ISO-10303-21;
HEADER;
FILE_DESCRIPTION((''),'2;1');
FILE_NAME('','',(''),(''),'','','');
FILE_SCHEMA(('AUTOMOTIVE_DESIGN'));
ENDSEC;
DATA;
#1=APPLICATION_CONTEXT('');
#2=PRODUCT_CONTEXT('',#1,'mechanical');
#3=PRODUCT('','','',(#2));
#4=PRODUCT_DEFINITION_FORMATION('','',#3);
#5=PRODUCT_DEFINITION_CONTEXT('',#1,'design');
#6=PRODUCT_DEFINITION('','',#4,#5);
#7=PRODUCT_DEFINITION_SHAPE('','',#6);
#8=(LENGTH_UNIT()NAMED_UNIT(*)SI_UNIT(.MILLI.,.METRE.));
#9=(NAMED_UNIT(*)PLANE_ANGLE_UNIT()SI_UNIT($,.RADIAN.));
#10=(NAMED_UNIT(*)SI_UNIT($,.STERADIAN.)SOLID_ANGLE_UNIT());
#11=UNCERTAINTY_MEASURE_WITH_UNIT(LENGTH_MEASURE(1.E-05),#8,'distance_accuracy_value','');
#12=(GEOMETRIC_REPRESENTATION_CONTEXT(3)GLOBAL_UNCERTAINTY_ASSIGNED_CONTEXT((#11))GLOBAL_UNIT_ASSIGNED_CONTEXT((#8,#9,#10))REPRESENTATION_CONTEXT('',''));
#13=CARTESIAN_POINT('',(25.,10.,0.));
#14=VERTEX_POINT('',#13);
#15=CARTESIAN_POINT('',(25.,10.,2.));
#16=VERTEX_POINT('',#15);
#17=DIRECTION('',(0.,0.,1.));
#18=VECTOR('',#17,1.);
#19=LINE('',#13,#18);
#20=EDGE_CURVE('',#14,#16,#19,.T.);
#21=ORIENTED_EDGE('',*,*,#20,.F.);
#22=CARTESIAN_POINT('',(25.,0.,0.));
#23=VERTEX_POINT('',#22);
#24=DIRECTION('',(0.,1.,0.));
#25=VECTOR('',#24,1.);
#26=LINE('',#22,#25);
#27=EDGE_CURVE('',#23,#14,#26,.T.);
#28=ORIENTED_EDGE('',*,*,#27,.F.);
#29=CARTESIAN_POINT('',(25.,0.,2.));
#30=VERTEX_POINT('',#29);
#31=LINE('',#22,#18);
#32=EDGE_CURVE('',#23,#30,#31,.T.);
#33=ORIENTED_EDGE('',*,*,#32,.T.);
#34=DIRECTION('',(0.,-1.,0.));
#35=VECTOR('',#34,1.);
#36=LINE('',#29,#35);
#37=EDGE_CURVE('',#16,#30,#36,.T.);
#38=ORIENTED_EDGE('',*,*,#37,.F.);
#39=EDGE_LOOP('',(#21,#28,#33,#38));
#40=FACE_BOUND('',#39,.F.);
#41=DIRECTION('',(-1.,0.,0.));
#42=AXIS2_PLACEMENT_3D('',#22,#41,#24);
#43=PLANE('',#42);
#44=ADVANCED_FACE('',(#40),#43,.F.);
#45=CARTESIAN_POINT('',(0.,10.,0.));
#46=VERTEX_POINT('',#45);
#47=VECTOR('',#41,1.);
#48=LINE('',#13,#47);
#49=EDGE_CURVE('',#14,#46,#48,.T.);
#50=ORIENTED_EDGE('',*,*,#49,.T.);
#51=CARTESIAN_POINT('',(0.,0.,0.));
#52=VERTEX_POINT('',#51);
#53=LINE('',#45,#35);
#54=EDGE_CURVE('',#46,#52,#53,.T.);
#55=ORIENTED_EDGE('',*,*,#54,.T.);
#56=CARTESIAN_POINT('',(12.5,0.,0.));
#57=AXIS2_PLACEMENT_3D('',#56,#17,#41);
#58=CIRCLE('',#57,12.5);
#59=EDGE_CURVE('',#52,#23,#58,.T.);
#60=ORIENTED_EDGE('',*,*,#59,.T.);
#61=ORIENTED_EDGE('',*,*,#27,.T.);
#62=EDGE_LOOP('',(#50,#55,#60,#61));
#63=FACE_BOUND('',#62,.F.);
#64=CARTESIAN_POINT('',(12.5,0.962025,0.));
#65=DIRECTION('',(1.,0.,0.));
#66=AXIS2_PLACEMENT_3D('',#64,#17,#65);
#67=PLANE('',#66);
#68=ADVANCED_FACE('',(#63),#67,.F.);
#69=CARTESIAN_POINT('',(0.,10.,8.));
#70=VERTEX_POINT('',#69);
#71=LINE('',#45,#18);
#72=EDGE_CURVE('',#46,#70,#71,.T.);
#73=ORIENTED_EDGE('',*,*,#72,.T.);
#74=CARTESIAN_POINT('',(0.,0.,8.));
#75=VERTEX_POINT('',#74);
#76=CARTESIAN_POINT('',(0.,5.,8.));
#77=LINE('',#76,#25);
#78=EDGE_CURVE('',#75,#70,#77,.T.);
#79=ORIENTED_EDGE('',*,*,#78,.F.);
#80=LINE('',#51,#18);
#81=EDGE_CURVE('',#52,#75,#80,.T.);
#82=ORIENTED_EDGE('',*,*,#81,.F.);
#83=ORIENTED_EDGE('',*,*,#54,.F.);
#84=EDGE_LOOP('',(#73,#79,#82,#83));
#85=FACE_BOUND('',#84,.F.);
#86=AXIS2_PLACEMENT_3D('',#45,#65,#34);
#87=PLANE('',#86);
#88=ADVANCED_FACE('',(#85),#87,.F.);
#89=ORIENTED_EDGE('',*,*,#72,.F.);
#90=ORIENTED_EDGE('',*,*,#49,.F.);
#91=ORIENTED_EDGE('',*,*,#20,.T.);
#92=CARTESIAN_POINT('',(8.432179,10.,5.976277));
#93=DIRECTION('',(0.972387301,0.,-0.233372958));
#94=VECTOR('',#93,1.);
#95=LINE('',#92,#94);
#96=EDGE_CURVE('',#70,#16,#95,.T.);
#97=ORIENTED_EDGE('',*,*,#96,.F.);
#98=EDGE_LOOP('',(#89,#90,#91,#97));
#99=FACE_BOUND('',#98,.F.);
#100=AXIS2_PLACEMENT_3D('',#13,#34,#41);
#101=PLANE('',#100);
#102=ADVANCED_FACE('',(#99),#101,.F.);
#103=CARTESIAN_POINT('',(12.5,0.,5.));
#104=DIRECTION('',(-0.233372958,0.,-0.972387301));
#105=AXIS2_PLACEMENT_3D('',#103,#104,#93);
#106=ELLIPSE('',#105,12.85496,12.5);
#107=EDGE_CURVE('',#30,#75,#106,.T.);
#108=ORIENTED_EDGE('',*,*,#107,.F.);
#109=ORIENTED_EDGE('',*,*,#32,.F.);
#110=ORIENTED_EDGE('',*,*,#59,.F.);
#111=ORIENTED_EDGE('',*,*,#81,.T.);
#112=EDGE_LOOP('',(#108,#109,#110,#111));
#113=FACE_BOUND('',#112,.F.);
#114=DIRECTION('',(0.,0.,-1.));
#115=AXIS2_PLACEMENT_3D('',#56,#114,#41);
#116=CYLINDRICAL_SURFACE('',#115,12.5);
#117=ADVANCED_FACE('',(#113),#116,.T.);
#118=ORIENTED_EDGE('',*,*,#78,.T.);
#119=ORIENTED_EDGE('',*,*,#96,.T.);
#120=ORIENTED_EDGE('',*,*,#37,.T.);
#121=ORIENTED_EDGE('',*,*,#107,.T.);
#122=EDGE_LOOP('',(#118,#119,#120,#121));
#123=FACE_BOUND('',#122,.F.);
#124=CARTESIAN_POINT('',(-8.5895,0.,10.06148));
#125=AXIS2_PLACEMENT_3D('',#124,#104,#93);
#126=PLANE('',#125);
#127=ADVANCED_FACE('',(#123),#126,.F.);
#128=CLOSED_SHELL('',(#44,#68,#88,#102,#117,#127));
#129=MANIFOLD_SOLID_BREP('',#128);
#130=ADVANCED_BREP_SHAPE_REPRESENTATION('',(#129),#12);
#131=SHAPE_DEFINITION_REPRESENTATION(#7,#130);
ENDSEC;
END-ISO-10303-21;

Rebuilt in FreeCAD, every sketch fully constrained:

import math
import FreeCAD as App
import Part
import Sketcher
Q = App.Units.Quantity

doc = App.newDocument("Part")
body = doc.addObject("PartDesign::Body", "Body")

# Sketch on XY plane
sketch1 = body.newObject("Sketcher::SketchObject", "Sketch")
sketch1.AttachmentSupport = (doc.getObject("XY_Plane"), [""])
sketch1.MapMode = "FlatFace"
sketch1.addGeometry(Part.LineSegment(App.Vector(0, 10, 0), App.Vector(0, 0, 0)), False)
sketch1.addGeometry(Part.ArcOfCircle(Part.Circle(App.Vector(12, 0, 0), App.Vector(0, 0, 1), 12), math.radians(180), math.radians(360)), False)
sketch1.addGeometry(Part.LineSegment(App.Vector(25, 0, 0), App.Vector(25, 10, 0)), False)
sketch1.addGeometry(Part.LineSegment(App.Vector(25, 10, 0), App.Vector(0, 10, 0)), False)
sketch1.addConstraint(Sketcher.Constraint("Tangent", 0, 2, 1, 1))
sketch1.addConstraint(Sketcher.Constraint("Tangent", 1, 2, 2, 1))
sketch1.addConstraint(Sketcher.Constraint("Coincident", 2, 2, 3, 1))
sketch1.addConstraint(Sketcher.Constraint("Coincident", 3, 2, 0, 1))
sketch1.addConstraint(Sketcher.Constraint("Vertical", 0))
sketch1.addConstraint(Sketcher.Constraint("Vertical", 2))
sketch1.addConstraint(Sketcher.Constraint("Horizontal", 3))
sketch1.addConstraint(Sketcher.Constraint("Coincident", 0, 2, -1, 1))
sketch1.addConstraint(Sketcher.Constraint("Radius", 1, Q("12.5 mm")))
sketch1.addConstraint(Sketcher.Constraint("DistanceY", 0, 2, 0, 1, Q("10 mm")))
pad1 = body.newObject("PartDesign::Pad", "Pad")
pad1.Profile = sketch1
pad1.Length = 25

# Sketch on XZ plane
sketch2 = body.newObject("Sketcher::SketchObject", "Sketch001")
sketch2.AttachmentSupport = (doc.getObject("XZ_Plane"), [""])
sketch2.MapMode = "FlatFace"
sketch2.addGeometry(Part.LineSegment(App.Vector(-9, 40, 0), App.Vector(-9, 10, 0)), False)
sketch2.addGeometry(Part.LineSegment(App.Vector(-9, 10, 0), App.Vector(31, 1, 0)), False)
sketch2.addGeometry(Part.LineSegment(App.Vector(31, 1, 0), App.Vector(31, 31, 0)), False)
sketch2.addGeometry(Part.LineSegment(App.Vector(31, 31, 0), App.Vector(-9, 40, 0)), False)
sketch2.addConstraint(Sketcher.Constraint("Coincident", 0, 2, 1, 1))
sketch2.addConstraint(Sketcher.Constraint("Coincident", 1, 2, 2, 1))
sketch2.addConstraint(Sketcher.Constraint("Coincident", 2, 2, 3, 1))
sketch2.addConstraint(Sketcher.Constraint("Coincident", 3, 2, 0, 1))
sketch2.addConstraint(Sketcher.Constraint("Vertical", 0))
sketch2.addConstraint(Sketcher.Constraint("Vertical", 2))
sketch2.addConstraint(Sketcher.Constraint("Parallel", 1, 3))
sketch2.addConstraint(Sketcher.Constraint("DistanceX", 0, 2, -1, 1, Q("8.5895 mm")))
sketch2.addConstraint(Sketcher.Constraint("Distance", 1, Q("40.47834 mm")))
sketch2.addConstraint(Sketcher.Constraint("DistanceY", 0, 2, 0, 1, Q("30.276982 mm")))
sketch2.addConstraint(Sketcher.Constraint("DistanceY", -1, 1, 0, 2, Q("10.06148 mm")))
sketch2.addConstraint(Sketcher.Constraint("DistanceY", -1, 1, 1, 2, Q("0.61493 mm")))
pocket1 = body.newObject("PartDesign::Pocket", "Pocket")
pocket1.Profile = sketch2
pocket1.Length = 60
pocket1.Midplane = True

doc.recompute()
